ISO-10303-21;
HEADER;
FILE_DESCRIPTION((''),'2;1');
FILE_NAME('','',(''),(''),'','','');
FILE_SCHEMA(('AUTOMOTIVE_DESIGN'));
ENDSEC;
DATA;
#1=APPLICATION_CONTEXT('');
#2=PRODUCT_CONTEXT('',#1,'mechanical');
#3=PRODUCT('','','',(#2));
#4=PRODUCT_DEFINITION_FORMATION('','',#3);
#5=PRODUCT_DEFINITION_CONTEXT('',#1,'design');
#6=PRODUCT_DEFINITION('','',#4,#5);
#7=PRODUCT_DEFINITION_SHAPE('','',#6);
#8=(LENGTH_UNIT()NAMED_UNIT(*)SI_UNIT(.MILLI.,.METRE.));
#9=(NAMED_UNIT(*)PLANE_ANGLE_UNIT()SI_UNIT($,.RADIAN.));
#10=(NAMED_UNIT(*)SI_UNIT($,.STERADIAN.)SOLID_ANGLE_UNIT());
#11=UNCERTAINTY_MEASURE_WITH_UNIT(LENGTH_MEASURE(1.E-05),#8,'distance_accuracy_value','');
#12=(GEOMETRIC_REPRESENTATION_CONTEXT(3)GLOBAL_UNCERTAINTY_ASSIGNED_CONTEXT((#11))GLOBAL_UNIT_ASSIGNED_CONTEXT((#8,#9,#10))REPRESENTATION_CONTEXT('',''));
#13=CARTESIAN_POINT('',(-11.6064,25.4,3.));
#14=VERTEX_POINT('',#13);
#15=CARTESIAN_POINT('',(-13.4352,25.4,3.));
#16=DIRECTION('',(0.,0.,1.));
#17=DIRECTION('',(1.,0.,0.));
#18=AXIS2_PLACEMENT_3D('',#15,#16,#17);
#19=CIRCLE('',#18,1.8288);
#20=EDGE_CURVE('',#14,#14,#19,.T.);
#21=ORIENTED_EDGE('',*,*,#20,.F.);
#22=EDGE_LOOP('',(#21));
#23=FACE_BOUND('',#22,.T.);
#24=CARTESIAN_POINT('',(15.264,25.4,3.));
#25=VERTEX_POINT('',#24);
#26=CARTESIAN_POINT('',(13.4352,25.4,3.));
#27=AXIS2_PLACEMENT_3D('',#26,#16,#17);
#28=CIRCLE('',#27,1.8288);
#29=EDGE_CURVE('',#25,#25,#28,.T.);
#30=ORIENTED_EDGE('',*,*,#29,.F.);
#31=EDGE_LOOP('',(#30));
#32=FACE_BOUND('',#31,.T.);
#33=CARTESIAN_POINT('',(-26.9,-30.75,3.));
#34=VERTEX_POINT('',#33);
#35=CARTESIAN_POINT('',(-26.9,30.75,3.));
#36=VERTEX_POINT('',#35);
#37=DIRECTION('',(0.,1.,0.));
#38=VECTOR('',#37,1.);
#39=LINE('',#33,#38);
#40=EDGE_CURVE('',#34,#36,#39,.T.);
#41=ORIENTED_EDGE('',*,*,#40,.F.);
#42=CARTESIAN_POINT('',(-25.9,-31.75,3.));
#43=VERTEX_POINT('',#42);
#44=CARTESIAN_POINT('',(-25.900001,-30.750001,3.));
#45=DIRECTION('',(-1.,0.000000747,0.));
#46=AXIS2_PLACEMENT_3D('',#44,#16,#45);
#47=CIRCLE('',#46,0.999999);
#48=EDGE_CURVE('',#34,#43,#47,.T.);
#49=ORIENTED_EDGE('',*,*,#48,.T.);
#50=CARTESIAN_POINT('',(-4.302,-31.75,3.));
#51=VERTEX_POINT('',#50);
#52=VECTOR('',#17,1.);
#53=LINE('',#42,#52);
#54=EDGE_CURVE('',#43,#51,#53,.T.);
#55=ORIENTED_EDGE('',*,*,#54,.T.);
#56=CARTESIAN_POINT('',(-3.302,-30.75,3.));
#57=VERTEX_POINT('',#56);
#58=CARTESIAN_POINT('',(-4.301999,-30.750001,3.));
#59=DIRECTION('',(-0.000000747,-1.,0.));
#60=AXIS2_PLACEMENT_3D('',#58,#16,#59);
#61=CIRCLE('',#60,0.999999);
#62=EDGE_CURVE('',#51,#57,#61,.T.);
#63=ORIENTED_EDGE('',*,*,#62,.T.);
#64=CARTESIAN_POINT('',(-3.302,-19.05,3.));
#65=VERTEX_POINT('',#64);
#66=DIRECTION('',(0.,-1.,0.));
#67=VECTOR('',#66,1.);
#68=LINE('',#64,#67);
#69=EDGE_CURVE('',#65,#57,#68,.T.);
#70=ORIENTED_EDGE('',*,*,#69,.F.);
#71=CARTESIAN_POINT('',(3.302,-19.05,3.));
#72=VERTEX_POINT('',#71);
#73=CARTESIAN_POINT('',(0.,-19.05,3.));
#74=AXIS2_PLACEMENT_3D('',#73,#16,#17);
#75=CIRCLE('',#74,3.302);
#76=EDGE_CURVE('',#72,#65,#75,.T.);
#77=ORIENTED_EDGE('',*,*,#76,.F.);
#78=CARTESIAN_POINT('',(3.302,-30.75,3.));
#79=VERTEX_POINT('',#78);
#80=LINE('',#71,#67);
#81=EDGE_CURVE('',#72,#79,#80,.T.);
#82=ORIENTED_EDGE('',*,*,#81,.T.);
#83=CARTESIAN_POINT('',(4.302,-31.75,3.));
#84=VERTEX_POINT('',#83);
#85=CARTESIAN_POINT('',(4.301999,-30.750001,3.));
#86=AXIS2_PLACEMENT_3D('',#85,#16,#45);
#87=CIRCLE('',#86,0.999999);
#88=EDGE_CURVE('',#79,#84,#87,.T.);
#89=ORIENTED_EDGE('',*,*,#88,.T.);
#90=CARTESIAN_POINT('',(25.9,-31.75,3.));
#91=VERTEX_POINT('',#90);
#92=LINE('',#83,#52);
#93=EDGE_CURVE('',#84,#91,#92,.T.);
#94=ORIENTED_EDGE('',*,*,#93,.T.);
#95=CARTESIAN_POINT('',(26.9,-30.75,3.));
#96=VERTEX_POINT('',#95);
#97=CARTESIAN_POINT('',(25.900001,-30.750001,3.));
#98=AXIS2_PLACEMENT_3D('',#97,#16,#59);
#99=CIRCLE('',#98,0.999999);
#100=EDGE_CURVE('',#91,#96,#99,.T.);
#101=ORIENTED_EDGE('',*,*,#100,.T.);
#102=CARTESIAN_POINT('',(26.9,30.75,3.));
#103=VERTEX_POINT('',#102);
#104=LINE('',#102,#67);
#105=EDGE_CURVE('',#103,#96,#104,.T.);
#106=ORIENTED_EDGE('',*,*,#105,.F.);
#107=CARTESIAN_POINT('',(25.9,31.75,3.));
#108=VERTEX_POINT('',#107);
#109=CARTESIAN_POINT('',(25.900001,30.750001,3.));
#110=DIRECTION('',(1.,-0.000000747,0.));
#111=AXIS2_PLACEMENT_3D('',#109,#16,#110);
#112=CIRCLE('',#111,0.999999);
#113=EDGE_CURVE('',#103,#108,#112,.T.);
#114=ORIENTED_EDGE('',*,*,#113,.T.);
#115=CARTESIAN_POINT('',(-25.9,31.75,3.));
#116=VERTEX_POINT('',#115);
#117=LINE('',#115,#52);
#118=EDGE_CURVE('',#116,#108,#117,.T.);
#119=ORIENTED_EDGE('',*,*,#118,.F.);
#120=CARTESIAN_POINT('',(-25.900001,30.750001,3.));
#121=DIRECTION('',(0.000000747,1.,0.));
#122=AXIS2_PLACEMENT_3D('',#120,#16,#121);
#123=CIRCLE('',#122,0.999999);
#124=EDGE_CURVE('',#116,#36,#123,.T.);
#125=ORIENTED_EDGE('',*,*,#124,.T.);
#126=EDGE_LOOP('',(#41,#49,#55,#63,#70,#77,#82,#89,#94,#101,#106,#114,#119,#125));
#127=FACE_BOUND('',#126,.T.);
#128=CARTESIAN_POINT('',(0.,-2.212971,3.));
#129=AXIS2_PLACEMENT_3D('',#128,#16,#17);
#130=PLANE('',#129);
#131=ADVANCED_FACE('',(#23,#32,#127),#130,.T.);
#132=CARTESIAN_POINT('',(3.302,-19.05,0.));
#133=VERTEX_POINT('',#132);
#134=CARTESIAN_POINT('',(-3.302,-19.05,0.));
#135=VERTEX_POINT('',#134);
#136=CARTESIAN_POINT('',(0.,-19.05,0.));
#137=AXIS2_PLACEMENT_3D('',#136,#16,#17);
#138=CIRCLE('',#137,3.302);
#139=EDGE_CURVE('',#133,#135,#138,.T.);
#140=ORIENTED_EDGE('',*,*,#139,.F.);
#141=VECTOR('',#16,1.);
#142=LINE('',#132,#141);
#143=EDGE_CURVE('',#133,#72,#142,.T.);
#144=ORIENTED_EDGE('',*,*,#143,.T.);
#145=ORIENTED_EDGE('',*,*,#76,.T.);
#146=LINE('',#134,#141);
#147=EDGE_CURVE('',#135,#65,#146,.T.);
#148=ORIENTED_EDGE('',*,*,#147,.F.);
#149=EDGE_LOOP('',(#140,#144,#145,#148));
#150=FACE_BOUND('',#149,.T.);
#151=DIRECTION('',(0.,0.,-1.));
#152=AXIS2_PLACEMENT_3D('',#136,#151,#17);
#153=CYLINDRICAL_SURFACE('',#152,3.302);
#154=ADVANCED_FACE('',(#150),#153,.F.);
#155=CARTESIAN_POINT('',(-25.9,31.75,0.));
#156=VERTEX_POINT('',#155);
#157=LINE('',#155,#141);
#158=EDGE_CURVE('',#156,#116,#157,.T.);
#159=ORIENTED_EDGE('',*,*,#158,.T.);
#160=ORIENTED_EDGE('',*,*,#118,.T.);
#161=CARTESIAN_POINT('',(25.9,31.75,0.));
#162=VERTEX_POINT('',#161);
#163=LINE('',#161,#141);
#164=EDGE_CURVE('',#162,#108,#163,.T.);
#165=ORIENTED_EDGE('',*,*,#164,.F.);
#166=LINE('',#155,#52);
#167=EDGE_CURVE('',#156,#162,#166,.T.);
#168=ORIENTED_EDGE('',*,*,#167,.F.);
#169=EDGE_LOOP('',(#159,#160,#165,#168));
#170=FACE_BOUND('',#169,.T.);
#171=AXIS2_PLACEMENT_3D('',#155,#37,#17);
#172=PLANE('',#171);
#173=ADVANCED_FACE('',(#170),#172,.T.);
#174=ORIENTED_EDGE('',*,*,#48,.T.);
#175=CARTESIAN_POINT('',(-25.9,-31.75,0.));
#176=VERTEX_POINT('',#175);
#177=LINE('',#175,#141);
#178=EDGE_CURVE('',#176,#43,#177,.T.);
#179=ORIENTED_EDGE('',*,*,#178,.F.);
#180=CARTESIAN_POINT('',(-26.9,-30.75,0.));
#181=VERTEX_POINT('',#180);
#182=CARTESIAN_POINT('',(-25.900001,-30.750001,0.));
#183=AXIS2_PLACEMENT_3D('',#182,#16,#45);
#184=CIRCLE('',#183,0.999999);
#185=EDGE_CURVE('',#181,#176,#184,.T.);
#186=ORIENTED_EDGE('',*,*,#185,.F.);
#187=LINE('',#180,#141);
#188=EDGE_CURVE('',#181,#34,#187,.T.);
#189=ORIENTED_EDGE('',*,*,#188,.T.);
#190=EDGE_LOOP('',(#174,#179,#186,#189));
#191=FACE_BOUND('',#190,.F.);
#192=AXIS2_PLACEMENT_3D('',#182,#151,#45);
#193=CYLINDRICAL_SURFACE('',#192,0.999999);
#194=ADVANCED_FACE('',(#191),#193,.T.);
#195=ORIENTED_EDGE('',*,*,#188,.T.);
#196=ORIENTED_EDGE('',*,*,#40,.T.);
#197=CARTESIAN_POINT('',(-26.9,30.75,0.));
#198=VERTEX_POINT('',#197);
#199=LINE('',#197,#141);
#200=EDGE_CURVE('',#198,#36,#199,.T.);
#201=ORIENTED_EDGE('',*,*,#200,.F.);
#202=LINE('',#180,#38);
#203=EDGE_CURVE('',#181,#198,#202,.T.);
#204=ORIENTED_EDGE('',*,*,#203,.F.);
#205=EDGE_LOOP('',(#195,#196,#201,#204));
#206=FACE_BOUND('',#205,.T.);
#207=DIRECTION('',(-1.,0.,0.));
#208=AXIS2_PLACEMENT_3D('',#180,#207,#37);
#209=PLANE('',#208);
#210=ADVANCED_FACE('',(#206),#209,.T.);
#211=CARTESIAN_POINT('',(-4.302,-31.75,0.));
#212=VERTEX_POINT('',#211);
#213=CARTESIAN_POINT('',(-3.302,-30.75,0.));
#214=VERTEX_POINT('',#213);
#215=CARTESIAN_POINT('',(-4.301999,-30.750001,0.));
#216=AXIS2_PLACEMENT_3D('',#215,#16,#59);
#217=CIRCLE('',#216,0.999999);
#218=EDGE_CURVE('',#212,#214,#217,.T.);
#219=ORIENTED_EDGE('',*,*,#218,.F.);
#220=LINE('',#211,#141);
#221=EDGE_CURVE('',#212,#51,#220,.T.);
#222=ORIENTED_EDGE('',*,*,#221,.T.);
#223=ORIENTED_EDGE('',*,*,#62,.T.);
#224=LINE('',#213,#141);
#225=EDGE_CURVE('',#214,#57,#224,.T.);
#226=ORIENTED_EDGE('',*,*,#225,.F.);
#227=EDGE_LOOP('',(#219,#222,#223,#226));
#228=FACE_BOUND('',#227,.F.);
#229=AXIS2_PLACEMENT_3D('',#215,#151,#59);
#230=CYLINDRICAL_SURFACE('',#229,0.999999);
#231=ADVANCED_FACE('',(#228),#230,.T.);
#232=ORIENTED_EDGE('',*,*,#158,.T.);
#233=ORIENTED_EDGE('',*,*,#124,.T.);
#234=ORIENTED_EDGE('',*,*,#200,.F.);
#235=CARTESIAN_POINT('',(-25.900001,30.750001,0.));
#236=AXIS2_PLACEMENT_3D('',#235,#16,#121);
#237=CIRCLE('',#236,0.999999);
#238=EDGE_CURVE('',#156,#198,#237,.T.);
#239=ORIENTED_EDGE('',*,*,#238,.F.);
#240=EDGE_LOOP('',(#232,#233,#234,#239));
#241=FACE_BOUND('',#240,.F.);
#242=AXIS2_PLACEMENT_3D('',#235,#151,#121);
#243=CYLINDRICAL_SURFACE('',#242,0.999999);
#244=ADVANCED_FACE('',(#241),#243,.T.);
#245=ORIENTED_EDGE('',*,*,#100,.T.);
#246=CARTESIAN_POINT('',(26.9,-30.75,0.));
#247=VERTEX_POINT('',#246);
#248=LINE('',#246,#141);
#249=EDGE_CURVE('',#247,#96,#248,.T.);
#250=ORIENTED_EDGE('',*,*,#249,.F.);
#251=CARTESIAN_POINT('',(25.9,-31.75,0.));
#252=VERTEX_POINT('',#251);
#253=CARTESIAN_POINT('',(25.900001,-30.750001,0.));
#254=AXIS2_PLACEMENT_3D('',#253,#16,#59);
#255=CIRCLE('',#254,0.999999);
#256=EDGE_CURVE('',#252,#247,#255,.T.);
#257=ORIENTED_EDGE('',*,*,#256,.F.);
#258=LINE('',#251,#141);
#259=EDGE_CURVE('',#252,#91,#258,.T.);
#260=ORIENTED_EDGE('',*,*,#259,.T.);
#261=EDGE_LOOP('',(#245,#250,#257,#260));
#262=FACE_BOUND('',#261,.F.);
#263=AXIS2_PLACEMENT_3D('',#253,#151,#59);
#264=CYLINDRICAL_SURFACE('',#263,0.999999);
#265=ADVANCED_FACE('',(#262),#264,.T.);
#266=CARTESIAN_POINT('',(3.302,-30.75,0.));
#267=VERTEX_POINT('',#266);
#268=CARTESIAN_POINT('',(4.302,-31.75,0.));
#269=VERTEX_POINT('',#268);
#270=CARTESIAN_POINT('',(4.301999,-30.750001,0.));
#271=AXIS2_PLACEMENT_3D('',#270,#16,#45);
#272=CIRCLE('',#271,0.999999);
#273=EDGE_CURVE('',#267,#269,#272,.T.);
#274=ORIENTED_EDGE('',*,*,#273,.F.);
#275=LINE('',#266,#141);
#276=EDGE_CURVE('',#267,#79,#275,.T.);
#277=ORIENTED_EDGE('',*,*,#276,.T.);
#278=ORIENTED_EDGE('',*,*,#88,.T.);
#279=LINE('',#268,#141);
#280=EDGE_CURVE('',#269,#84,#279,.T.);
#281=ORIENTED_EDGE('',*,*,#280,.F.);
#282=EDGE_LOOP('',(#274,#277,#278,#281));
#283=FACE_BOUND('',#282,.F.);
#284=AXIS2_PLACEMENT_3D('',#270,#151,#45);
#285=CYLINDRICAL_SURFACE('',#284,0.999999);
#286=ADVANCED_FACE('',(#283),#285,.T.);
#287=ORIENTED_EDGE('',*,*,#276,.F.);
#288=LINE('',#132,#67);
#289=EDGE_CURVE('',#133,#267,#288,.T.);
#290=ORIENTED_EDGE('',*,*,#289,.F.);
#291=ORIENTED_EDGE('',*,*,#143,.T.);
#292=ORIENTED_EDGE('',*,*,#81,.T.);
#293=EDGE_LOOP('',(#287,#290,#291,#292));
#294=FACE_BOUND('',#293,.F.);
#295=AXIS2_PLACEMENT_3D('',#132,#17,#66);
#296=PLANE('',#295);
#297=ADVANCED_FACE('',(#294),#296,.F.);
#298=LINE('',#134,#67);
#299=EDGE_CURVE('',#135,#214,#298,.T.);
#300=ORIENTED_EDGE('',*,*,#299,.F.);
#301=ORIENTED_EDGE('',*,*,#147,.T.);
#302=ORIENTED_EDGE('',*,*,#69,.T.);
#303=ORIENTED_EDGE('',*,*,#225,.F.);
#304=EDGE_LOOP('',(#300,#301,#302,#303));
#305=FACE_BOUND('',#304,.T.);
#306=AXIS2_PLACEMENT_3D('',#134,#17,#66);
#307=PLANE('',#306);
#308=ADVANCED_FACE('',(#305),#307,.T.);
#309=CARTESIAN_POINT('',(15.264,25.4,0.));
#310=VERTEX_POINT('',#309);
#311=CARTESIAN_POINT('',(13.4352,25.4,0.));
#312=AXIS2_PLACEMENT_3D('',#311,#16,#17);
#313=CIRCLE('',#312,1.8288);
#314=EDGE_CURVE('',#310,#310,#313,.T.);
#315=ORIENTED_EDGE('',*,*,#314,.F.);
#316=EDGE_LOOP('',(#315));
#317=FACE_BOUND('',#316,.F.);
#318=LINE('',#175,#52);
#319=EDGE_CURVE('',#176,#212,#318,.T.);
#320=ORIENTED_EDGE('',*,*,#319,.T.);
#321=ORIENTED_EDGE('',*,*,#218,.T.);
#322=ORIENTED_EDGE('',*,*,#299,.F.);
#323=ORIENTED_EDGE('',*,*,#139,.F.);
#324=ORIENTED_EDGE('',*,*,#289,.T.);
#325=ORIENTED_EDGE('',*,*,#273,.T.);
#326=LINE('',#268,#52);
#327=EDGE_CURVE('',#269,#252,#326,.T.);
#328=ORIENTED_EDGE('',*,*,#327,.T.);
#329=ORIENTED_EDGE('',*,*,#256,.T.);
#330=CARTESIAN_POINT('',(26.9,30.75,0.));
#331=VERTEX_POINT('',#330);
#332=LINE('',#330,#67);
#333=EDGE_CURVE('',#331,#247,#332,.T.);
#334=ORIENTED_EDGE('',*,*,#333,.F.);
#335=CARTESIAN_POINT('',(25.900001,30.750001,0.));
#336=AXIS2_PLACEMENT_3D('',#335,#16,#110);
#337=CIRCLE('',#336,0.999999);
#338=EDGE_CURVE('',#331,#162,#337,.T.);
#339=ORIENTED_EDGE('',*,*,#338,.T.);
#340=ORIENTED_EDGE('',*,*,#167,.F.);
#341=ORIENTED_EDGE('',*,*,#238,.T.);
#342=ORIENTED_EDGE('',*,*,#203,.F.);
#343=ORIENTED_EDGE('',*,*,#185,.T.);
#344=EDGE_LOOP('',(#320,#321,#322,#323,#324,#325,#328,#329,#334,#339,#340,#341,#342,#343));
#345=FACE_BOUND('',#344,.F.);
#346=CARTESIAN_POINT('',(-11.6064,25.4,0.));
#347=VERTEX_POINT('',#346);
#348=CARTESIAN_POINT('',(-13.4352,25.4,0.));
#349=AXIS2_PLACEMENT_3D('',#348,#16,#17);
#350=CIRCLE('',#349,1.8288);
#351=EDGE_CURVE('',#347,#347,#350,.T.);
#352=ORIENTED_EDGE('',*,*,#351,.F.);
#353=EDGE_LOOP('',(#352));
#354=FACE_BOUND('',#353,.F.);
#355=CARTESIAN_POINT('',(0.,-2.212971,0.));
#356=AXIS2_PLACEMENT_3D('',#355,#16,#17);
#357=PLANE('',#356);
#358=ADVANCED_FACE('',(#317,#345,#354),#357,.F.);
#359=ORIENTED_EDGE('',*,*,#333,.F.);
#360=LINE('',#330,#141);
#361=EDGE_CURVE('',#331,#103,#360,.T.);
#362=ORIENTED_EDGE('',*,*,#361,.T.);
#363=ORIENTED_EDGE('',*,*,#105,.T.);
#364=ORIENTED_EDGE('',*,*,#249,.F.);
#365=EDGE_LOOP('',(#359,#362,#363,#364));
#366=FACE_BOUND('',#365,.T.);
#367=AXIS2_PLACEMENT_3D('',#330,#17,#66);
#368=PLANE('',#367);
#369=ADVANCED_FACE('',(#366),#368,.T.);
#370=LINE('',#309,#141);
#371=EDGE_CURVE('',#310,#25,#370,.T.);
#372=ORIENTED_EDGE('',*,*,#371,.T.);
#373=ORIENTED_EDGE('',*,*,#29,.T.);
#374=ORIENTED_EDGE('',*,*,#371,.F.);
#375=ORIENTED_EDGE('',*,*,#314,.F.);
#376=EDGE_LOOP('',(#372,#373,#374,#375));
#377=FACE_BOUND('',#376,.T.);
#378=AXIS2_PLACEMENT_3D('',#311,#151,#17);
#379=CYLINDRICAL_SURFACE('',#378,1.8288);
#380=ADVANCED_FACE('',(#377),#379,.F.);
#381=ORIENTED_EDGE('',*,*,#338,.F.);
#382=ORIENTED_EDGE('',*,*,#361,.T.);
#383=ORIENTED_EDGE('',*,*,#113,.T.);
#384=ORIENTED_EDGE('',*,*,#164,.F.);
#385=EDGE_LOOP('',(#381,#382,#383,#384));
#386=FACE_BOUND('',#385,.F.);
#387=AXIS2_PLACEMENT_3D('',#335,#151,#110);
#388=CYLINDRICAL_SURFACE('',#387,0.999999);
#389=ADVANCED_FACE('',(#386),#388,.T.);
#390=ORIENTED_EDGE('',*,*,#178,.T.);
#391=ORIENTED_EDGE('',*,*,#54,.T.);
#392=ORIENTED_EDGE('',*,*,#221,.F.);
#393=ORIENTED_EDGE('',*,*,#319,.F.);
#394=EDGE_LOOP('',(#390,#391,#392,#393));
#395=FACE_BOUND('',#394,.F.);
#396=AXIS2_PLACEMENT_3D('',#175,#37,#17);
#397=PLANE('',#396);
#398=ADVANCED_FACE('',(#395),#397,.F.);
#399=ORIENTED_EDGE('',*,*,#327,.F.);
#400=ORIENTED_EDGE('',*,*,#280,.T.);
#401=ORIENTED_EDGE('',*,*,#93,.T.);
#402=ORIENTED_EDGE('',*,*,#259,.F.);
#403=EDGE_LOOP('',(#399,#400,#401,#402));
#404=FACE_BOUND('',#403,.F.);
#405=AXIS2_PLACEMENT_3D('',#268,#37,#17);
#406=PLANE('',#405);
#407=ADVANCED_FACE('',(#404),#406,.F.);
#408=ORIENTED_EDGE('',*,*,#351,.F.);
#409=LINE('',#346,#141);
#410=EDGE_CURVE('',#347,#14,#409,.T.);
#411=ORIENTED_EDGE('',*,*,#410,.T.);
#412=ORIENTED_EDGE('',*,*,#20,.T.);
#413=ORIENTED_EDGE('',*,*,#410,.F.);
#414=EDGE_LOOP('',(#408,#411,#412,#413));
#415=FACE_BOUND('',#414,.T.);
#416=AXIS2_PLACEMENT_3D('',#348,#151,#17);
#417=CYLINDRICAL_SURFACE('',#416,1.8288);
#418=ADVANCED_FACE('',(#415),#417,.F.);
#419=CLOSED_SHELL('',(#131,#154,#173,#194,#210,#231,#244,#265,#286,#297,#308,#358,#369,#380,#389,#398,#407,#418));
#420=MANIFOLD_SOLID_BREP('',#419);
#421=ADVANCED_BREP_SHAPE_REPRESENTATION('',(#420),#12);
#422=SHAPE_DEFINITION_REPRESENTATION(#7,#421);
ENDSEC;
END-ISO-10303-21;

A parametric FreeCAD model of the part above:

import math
import FreeCAD as App
import Part
import Sketcher
from FreeCAD import Vector

doc = App.newDocument("Part")
body = doc.addObject("PartDesign::Body", "Body")

# Sketch on XY plane
sketch1 = body.newObject("Sketcher::SketchObject", "Sketch")
sketch1.AttachmentSupport = (doc.getObject("XY_Plane"), [""])
sketch1.MapMode = "FlatFace"
sketch1.addGeometry([
    Part.ArcOfCircle(Part.Circle(Vector(-25.9, 30.8, 0), Vector(0, 0, 1), 1), math.radians(90), math.radians(180)),  # 0
    Part.LineSegment(Vector(-26.9, 30.8, 0), Vector(-26.9, -30.8, 0)),  # 1
    Part.ArcOfCircle(Part.Circle(Vector(-25.9, -30.8, 0), Vector(0, 0, 1), 1), math.radians(180), math.radians(270)),  # 2
    Part.LineSegment(Vector(-25.9, -31.8, 0), Vector(-4.3, -31.8, 0)),  # 3
    Part.ArcOfCircle(Part.Circle(Vector(-4.3, -30.8, 0), Vector(0, 0, 1), 1), math.radians(-90), math.radians(0)),  # 4
    Part.LineSegment(Vector(-3.3, -30.8, 0), Vector(-3.3, -19.1, 0)),  # 5
    Part.ArcOfCircle(Part.Circle(Vector(0, -19.1, 0), Vector(0, 0, 1), 3.3), math.radians(0), math.radians(180)),  # 6
    Part.LineSegment(Vector(3.3, -19.1, 0), Vector(3.3, -30.8, 0)),  # 7
    Part.ArcOfCircle(Part.Circle(Vector(4.3, -30.8, 0), Vector(0, 0, 1), 1), math.radians(180), math.radians(270)),  # 8
    Part.LineSegment(Vector(4.3, -31.8, 0), Vector(25.9, -31.8, 0)),  # 9
    Part.ArcOfCircle(Part.Circle(Vector(25.9, -30.8, 0), Vector(0, 0, 1), 1), math.radians(-90), math.radians(0)),  # 10
    Part.LineSegment(Vector(26.9, -30.8, 0), Vector(26.9, 30.8, 0)),  # 11
    Part.ArcOfCircle(Part.Circle(Vector(25.9, 30.8, 0), Vector(0, 0, 1), 1), math.radians(0), math.radians(90)),  # 12
    Part.LineSegment(Vector(25.9, 31.8, 0), Vector(-25.9, 31.8, 0)),  # 13
    Part.Circle(Vector(-13.4, 25.4, 0), Vector(0, 0, 1), 1.8),  # 14
    Part.Circle(Vector(13.4, 25.4, 0), Vector(0, 0, 1), 1.8),  # 15
], False)
sketch1.addConstraint([
    Sketcher.Constraint("Tangent", 0, 2, 1, 1),
    Sketcher.Constraint("Tangent", 1, 2, 2, 1),
    Sketcher.Constraint("Tangent", 2, 2, 3, 1),
    Sketcher.Constraint("Tangent", 3, 2, 4, 1),
    Sketcher.Constraint("Tangent", 4, 2, 5, 1),
    Sketcher.Constraint("Tangent", 5, 2, 6, 2),
    Sketcher.Constraint("Tangent", 6, 1, 7, 1),
    Sketcher.Constraint("Tangent", 7, 2, 8, 1),
    Sketcher.Constraint("Tangent", 8, 2, 9, 1),
    Sketcher.Constraint("Tangent", 9, 2, 10, 1),
    Sketcher.Constraint("Tangent", 10, 2, 11, 1),
    Sketcher.Constraint("Tangent", 11, 2, 12, 1),
    Sketcher.Constraint("Tangent", 12, 2, 13, 1),
    Sketcher.Constraint("Tangent", 13, 2, 0, 1),
    Sketcher.Constraint("Vertical", 1),
    Sketcher.Constraint("Horizontal", 3),
    Sketcher.Constraint("Vertical", 5),
    Sketcher.Constraint("Vertical", 7),
    Sketcher.Constraint("Horizontal", 9),
    Sketcher.Constraint("Vertical", 11),
    Sketcher.Constraint("Horizontal", 13),
    Sketcher.Constraint("Equal", 0, 2),
    Sketcher.Constraint("Equal", 2, 4),
    Sketcher.Constraint("Equal", 4, 8),
    Sketcher.Constraint("Equal", 8, 10),
    Sketcher.Constraint("Equal", 10, 12),
    Sketcher.Constraint("Equal", 14, 15),
    Sketcher.Constraint("Symmetric", 0, 3, 10, 3, -1, 1),
    Sketcher.Constraint("Symmetric", 4, 3, 8, 3, -2),
    Sketcher.Constraint("Symmetric", 14, 3, 15, 3, -2),
    Sketcher.Constraint("Radius", 0, 0.999999),
    Sketcher.Constraint("DistanceX", 13, 2, 13, 1, 51.8),
    Sketcher.Constraint("DistanceY", 1, 2, 1, 1, 61.5),
    Sketcher.Constraint("DistanceY", 5, 1, 5, 2, 11.7),
    Sketcher.Constraint("Radius", 6, 3.302),
    Sketcher.Constraint("Diameter", 14, 3.6576),
    Sketcher.Constraint("DistanceY", -1, 1, 14, 3, 25.4),
    Sketcher.Constraint("DistanceX", 14, 3, -1, 1, 13.4352),
])
pad1 = body.newObject("PartDesign::Pad", "Pad")
pad1.Profile = sketch1
pad1.Length = 3

doc.recompute()
